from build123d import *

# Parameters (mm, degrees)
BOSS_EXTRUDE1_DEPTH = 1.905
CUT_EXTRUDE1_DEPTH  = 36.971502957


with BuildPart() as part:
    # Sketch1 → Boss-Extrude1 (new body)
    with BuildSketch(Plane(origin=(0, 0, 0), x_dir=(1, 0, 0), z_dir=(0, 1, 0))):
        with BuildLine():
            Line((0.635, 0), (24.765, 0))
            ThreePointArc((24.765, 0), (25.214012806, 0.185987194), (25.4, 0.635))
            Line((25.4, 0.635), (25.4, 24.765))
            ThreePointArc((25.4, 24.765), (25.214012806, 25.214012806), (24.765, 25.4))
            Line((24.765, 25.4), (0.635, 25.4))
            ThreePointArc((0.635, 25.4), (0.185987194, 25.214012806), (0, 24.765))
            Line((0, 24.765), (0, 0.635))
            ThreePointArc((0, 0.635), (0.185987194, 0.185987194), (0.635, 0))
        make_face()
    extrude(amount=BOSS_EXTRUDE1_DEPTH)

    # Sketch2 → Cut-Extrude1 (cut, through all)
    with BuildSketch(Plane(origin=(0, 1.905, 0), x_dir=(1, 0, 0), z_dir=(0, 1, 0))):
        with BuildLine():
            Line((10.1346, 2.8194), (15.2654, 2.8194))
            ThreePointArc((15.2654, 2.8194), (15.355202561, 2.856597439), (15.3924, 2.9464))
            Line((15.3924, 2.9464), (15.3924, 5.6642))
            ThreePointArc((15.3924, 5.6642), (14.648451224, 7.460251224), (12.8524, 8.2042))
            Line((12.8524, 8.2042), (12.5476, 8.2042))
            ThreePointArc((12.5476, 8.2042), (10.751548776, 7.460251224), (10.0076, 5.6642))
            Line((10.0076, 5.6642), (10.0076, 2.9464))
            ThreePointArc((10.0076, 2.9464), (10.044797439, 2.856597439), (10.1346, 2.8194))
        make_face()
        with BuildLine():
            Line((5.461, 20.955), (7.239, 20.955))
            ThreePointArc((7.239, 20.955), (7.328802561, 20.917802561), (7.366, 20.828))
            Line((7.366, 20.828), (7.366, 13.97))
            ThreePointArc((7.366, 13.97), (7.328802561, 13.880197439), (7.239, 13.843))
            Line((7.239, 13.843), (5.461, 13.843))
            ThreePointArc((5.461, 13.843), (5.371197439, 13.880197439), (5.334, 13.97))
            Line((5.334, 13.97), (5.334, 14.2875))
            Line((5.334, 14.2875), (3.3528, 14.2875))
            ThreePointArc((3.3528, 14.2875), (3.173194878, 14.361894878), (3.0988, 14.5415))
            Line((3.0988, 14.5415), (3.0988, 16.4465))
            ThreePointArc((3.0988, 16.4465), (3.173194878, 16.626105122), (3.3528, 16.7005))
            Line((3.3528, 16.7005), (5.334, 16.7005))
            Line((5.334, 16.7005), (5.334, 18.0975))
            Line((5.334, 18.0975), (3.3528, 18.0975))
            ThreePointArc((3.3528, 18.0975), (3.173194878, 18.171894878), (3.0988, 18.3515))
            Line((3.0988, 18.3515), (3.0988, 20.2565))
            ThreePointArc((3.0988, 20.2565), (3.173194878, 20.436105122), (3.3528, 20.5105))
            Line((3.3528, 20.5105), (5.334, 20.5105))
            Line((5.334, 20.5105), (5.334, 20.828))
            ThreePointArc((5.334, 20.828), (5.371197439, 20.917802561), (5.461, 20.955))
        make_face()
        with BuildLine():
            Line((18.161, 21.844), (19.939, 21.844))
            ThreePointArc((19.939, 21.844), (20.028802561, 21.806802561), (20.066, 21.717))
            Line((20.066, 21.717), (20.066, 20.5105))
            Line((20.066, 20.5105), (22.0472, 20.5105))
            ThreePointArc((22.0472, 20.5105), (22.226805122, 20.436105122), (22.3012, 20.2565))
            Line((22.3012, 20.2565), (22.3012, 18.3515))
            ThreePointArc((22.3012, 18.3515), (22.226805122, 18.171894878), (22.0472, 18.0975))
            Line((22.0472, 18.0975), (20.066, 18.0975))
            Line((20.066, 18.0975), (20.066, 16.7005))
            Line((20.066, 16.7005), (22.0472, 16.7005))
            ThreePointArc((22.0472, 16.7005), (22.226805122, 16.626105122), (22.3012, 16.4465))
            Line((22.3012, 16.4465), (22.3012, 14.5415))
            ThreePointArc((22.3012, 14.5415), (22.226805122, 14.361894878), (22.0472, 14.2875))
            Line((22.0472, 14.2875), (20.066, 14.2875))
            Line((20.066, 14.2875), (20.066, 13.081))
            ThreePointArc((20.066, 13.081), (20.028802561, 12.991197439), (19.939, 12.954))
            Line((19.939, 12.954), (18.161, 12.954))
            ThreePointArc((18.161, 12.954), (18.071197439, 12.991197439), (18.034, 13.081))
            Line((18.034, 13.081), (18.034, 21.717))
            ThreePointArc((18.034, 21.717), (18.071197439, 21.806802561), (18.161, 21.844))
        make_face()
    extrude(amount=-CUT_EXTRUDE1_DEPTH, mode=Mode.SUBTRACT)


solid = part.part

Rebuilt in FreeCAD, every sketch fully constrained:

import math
import FreeCAD as App
import Part
import Sketcher
Q = App.Units.Quantity

doc = App.newDocument("Part")
body = doc.addObject("PartDesign::Body", "Body")

sketch1 = body.newObject("Sketcher::SketchObject", "Sketch")
sketch1.AttachmentSupport = (doc.getObject("XZ_Plane"), [""])
sketch1.MapMode = "FlatFace"
sketch1.addGeometry(Part.LineSegment(App.Vector(0.635, 0, 0), App.Vector(24.765, 0, 0)), False)
sketch1.addGeometry(Part.ArcOfCircle(Part.Circle(App.Vector(24.765, -0.635, 0), App.Vector(0, 0, 1), 0.635), math.radians(0), math.radians(90)), False)
sketch1.addGeometry(Part.LineSegment(App.Vector(25.4, -0.635, 0), App.Vector(25.4, -24.765, 0)), False)
sketch1.addGeometry(Part.ArcOfCircle(Part.Circle(App.Vector(24.765, -24.765, 0), App.Vector(0, 0, 1), 0.635), math.radians(-90), math.radians(0)), False)
sketch1.addGeometry(Part.LineSegment(App.Vector(24.765, -25.4, 0), App.Vector(0.635, -25.4, 0)), False)
sketch1.addGeometry(Part.ArcOfCircle(Part.Circle(App.Vector(0.635, -24.765, 0), App.Vector(0, 0, 1), 0.635), math.radians(180), math.radians(270)), False)
sketch1.addGeometry(Part.LineSegment(App.Vector(0, -24.765, 0), App.Vector(0, -0.635, 0)), False)
sketch1.addGeometry(Part.ArcOfCircle(Part.Circle(App.Vector(0.635, -0.635, 0), App.Vector(0, 0, 1), 0.635), math.radians(90), math.radians(180)), False)
sketch1.addConstraint(Sketcher.Constraint("Tangent", 0, 2, 1, 2))
sketch1.addConstraint(Sketcher.Constraint("Tangent", 1, 1, 2, 1))
sketch1.addConstraint(Sketcher.Constraint("Tangent", 2, 2, 3, 2))
sketch1.addConstraint(Sketcher.Constraint("Tangent", 3, 1, 4, 1))
sketch1.addConstraint(Sketcher.Constraint("Tangent", 4, 2, 5, 2))
sketch1.addConstraint(Sketcher.Constraint("Tangent", 5, 1, 6, 1))
sketch1.addConstraint(Sketcher.Constraint("Tangent", 6, 2, 7, 2))
sketch1.addConstraint(Sketcher.Constraint("Tangent", 7, 1, 0, 1))
sketch1.addConstraint(Sketcher.Constraint("Horizontal", 0))
sketch1.addConstraint(Sketcher.Constraint("Vertical", 2))
sketch1.addConstraint(Sketcher.Constraint("Horizontal", 4))
sketch1.addConstraint(Sketcher.Constraint("Vertical", 6))
sketch1.addConstraint(Sketcher.Constraint("Equal", 1, 3))
sketch1.addConstraint(Sketcher.Constraint("Equal", 3, 5))
sketch1.addConstraint(Sketcher.Constraint("Equal", 5, 7))
sketch1.addConstraint(Sketcher.Constraint("PointOnObject", 0, 2, -1))
sketch1.addConstraint(Sketcher.Constraint("PointOnObject", 5, 1, -2))
sketch1.addConstraint(Sketcher.Constraint("Equal", 4, 2))
sketch1.addConstraint(Sketcher.Constraint("DistanceX", -1, 1, 1, 1, Q("1 in")))
sketch1.addConstraint(Sketcher.Constraint("Radius", 1, Q("0.025 in")))
pad1 = body.newObject("PartDesign::Pad", "Pad")
pad1.Profile = sketch1
pad1.Length = Q("0.075 in")
pad1.Reversed = True

sketch2 = body.newObject("Sketcher::SketchObject", "Sketch001")
sketch2.AttachmentSupport = (doc.getObject("XZ_Plane"), [""])
sketch2.MapMode = "FlatFace"
sketch2.AttachmentOffset = App.Placement(App.Vector(0, 0, -0.075 * 25.4), App.Rotation())
sketch2.addGeometry(Part.LineSegment(App.Vector(10.1346, -2.8194, 0), App.Vector(15.2654, -2.8194, 0)), False)
sketch2.addGeometry(Part.ArcOfCircle(Part.Circle(App.Vector(15.2654, -2.9464, 0), App.Vector(0, 0, 1), 0.127), math.radians(0), math.radians(90)), False)
sketch2.addGeometry(Part.LineSegment(App.Vector(15.3924, -2.9464, 0), App.Vector(15.3924, -5.6642, 0)), False)
sketch2.addGeometry(Part.ArcOfCircle(Part.Circle(App.Vector(12.8524, -5.6642, 0), App.Vector(0, 0, 1), 2.54), math.radians(-90), math.radians(0)), False)
sketch2.addGeometry(Part.LineSegment(App.Vector(12.8524, -8.2042, 0), App.Vector(12.5476, -8.2042, 0)), False)
sketch2.addGeometry(Part.ArcOfCircle(Part.Circle(App.Vector(12.5476, -5.6642, 0), App.Vector(0, 0, 1), 2.54), math.radians(-180), math.radians(-90)), False)
sketch2.addGeometry(Part.LineSegment(App.Vector(10.0076, -5.6642, 0), App.Vector(10.0076, -2.9464, 0)), False)
sketch2.addGeometry(Part.ArcOfCircle(Part.Circle(App.Vector(10.1346, -2.9464, 0), App.Vector(0, 0, 1), 0.127), math.radians(90), math.radians(180)), False)
sketch2.addGeometry(Part.LineSegment(App.Vector(7.239, -20.955, 0), App.Vector(5.461, -20.955, 0)), False)
sketch2.addGeometry(Part.ArcOfCircle(Part.Circle(App.Vector(5.461, -20.828, 0), App.Vector(0, 0, 1), 0.127), math.radians(-180), math.radians(-90)), False)
sketch2.addGeometry(Part.LineSegment(App.Vector(5.334, -20.828, 0), App.Vector(5.334, -20.5105, 0)), False)
sketch2.addGeometry(Part.LineSegment(App.Vector(5.334, -20.5105, 0), App.Vector(3.3528, -20.5105, 0)), False)
sketch2.addGeometry(Part.ArcOfCircle(Part.Circle(App.Vector(3.3528, -20.2565, 0), App.Vector(0, 0, 1), 0.254), math.radians(-180), math.radians(-90)), False)
sketch2.addGeometry(Part.LineSegment(App.Vector(3.0988, -20.2565, 0), App.Vector(3.0988, -18.3515, 0)), False)
sketch2.addGeometry(Part.ArcOfCircle(Part.Circle(App.Vector(3.3528, -18.3515, 0), App.Vector(0, 0, 1), 0.254), math.radians(90), math.radians(180)), False)
sketch2.addGeometry(Part.LineSegment(App.Vector(3.3528, -18.0975, 0), App.Vector(5.334, -18.0975, 0)), False)
sketch2.addGeometry(Part.LineSegment(App.Vector(5.334, -18.0975, 0), App.Vector(5.334, -16.7005, 0)), False)
sketch2.addGeometry(Part.LineSegment(App.Vector(5.334, -16.7005, 0), App.Vector(3.3528, -16.7005, 0)), False)
sketch2.addGeometry(Part.ArcOfCircle(Part.Circle(App.Vector(3.3528, -16.4465, 0), App.Vector(0, 0, 1), 0.254), math.radians(-180), math.radians(-90)), False)
sketch2.addGeometry(Part.LineSegment(App.Vector(3.0988, -16.4465, 0), App.Vector(3.0988, -14.5415, 0)), False)
sketch2.addGeometry(Part.ArcOfCircle(Part.Circle(App.Vector(3.3528, -14.5415, 0), App.Vector(0, 0, 1), 0.254), math.radians(90), math.radians(180)), False)
sketch2.addGeometry(Part.LineSegment(App.Vector(3.3528, -14.2875, 0), App.Vector(5.334, -14.2875, 0)), False)
sketch2.addGeometry(Part.LineSegment(App.Vector(5.334, -14.2875, 0), App.Vector(5.334, -13.97, 0)), False)
sketch2.addGeometry(Part.ArcOfCircle(Part.Circle(App.Vector(5.461, -13.97, 0), App.Vector(0, 0, 1), 0.127), math.radians(90), math.radians(180)), False)
sketch2.addGeometry(Part.LineSegment(App.Vector(5.461, -13.843, 0), App.Vector(7.239, -13.843, 0)), False)
sketch2.addGeometry(Part.ArcOfCircle(Part.Circle(App.Vector(7.239, -13.97, 0), App.Vector(0, 0, 1), 0.127), math.radians(0), math.radians(90)), False)
sketch2.addGeometry(Part.LineSegment(App.Vector(7.366, -13.97, 0), App.Vector(7.366, -20.828, 0)), False)
sketch2.addGeometry(Part.ArcOfCircle(Part.Circle(App.Vector(7.239, -20.828, 0), App.Vector(0, 0, 1), 0.127), math.radians(-90), math.radians(0)), False)
sketch2.addGeometry(Part.LineSegment(App.Vector(19.939, -21.844, 0), App.Vector(18.161, -21.844, 0)), False)
sketch2.addGeometry(Part.ArcOfCircle(Part.Circle(App.Vector(18.161, -21.717, 0), App.Vector(0, 0, 1), 0.127), math.radians(-180), math.radians(-90)), False)
sketch2.addGeometry(Part.LineSegment(App.Vector(18.034, -21.717, 0), App.Vector(18.034, -13.081, 0)), False)
sketch2.addGeometry(Part.ArcOfCircle(Part.Circle(App.Vector(18.161, -13.081, 0), App.Vector(0, 0, 1), 0.127), math.radians(90), math.radians(180)), False)
sketch2.addGeometry(Part.LineSegment(App.Vector(18.161, -12.954, 0), App.Vector(19.939, -12.954, 0)), False)
sketch2.addGeometry(Part.ArcOfCircle(Part.Circle(App.Vector(19.939, -13.081, 0), App.Vector(0, 0, 1), 0.127), math.radians(0), math.radians(90)), False)
sketch2.addGeometry(Part.LineSegment(App.Vector(20.066, -13.081, 0), App.Vector(20.066, -14.2875, 0)), False)
sketch2.addGeometry(Part.LineSegment(App.Vector(20.066, -14.2875, 0), App.Vector(22.0472, -14.2875, 0)), False)
sketch2.addGeometry(Part.ArcOfCircle(Part.Circle(App.Vector(22.0472, -14.5415, 0), App.Vector(0, 0, 1), 0.254), math.radians(0), math.radians(90)), False)
sketch2.addGeometry(Part.LineSegment(App.Vector(22.3012, -14.5415, 0), App.Vector(22.3012, -16.4465, 0)), False)
sketch2.addGeometry(Part.ArcOfCircle(Part.Circle(App.Vector(22.0472, -16.4465, 0), App.Vector(0, 0, 1), 0.254), math.radians(-90), math.radians(0)), False)
sketch2.addGeometry(Part.LineSegment(App.Vector(22.0472, -16.7005, 0), App.Vector(20.066, -16.7005, 0)), False)
sketch2.addGeometry(Part.LineSegment(App.Vector(20.066, -16.7005, 0), App.Vector(20.066, -18.0975, 0)), False)
sketch2.addGeometry(Part.LineSegment(App.Vector(20.066, -18.0975, 0), App.Vector(22.0472, -18.0975, 0)), False)
sketch2.addGeometry(Part.ArcOfCircle(Part.Circle(App.Vector(22.0472, -18.3515, 0), App.Vector(0, 0, 1), 0.254), math.radians(0), math.radians(90)), False)
sketch2.addGeometry(Part.LineSegment(App.Vector(22.3012, -18.3515, 0), App.Vector(22.3012, -20.2565, 0)), False)
sketch2.addGeometry(Part.ArcOfCircle(Part.Circle(App.Vector(22.0472, -20.2565, 0), App.Vector(0, 0, 1), 0.254), math.radians(-90), math.radians(0)), False)
sketch2.addGeometry(Part.LineSegment(App.Vector(22.0472, -20.5105, 0), App.Vector(20.066, -20.5105, 0)), False)
sketch2.addGeometry(Part.LineSegment(App.Vector(20.066, -20.5105, 0), App.Vector(20.066, -21.717, 0)), False)
sketch2.addGeometry(Part.ArcOfCircle(Part.Circle(App.Vector(19.939, -21.717, 0), App.Vector(0, 0, 1), 0.127), math.radians(-90), math.radians(0)), False)
sketch2.addConstraint(Sketcher.Constraint("Tangent", 0, 2, 1, 2))
sketch2.addConstraint(Sketcher.Constraint("Tangent", 1, 1, 2, 1))
sketch2.addConstraint(Sketcher.Constraint("Tangent", 2, 2, 3, 2))
sketch2.addConstraint(Sketcher.Constraint("Tangent", 3, 1, 4, 1))
sketch2.addConstraint(Sketcher.Constraint("Tangent", 4, 2, 5, 2))
sketch2.addConstraint(Sketcher.Constraint("Tangent", 5, 1, 6, 1))
sketch2.addConstraint(Sketcher.Constraint("Tangent", 6, 2, 7, 2))
sketch2.addConstraint(Sketcher.Constraint("Tangent", 7, 1, 0, 1))
sketch2.addConstraint(Sketcher.Constraint("Tangent", 8, 2, 9, 2))
sketch2.addConstraint(Sketcher.Constraint("Tangent", 9, 1, 10, 1))
sketch2.addConstraint(Sketcher.Constraint("Coincident", 10, 2, 11, 1))
sketch2.addConstraint(Sketcher.Constraint("Tangent", 11, 2, 12, 2))
sketch2.addConstraint(Sketcher.Constraint("Tangent", 12, 1, 13, 1))
sketch2.addConstraint(Sketcher.Constraint("Tangent", 13, 2, 14, 2))
sketch2.addConstraint(Sketcher.Constraint("Tangent", 14, 1, 15, 1))
sketch2.addConstraint(Sketcher.Constraint("Coincident", 15, 2, 16, 1))
sketch2.addConstraint(Sketcher.Constraint("Coincident", 16, 2, 17, 1))
sketch2.addConstraint(Sketcher.Constraint("Tangent", 17, 2, 18, 2))
sketch2.addConstraint(Sketcher.Constraint("Tangent", 18, 1, 19, 1))
sketch2.addConstraint(Sketcher.Constraint("Tangent", 19, 2, 20, 2))
sketch2.addConstraint(Sketcher.Constraint("Tangent", 20, 1, 21, 1))
sketch2.addConstraint(Sketcher.Constraint("Coincident", 21, 2, 22, 1))
sketch2.addConstraint(Sketcher.Constraint("Tangent", 22, 2, 23, 2))
sketch2.addConstraint(Sketcher.Constraint("Tangent", 23, 1, 24, 1))
sketch2.addConstraint(Sketcher.Constraint("Tangent", 24, 2, 25, 2))
sketch2.addConstraint(Sketcher.Constraint("Tangent", 25, 1, 26, 1))
sketch2.addConstraint(Sketcher.Constraint("Tangent", 26, 2, 27, 2))
sketch2.addConstraint(Sketcher.Constraint("Tangent", 27, 1, 8, 1))
sketch2.addConstraint(Sketcher.Constraint("Tangent", 28, 2, 29, 2))
sketch2.addConstraint(Sketcher.Constraint("Tangent", 29, 1, 30, 1))
sketch2.addConstraint(Sketcher.Constraint("Tangent", 30, 2, 31, 2))
sketch2.addConstraint(Sketcher.Constraint("Tangent", 31, 1, 32, 1))
sketch2.addConstraint(Sketcher.Constraint("Tangent", 32, 2, 33, 2))
sketch2.addConstraint(Sketcher.Constraint("Tangent", 33, 1, 34, 1))
sketch2.addConstraint(Sketcher.Constraint("Coincident", 34, 2, 35, 1))
sketch2.addConstraint(Sketcher.Constraint("Tangent", 35, 2, 36, 2))
sketch2.addConstraint(Sketcher.Constraint("Tangent", 36, 1, 37, 1))
sketch2.addConstraint(Sketcher.Constraint("Tangent", 37, 2, 38, 2))
sketch2.addConstraint(Sketcher.Constraint("Tangent", 38, 1, 39, 1))
sketch2.addConstraint(Sketcher.Constraint("Coincident", 39, 2, 40, 1))
sketch2.addConstraint(Sketcher.Constraint("Coincident", 40, 2, 41, 1))
sketch2.addConstraint(Sketcher.Constraint("Tangent", 41, 2, 42, 2))
sketch2.addConstraint(Sketcher.Constraint("Tangent", 42, 1, 43, 1))
sketch2.addConstraint(Sketcher.Constraint("Tangent", 43, 2, 44, 2))
sketch2.addConstraint(Sketcher.Constraint("Tangent", 44, 1, 45, 1))
sketch2.addConstraint(Sketcher.Constraint("Coincident", 45, 2, 46, 1))
sketch2.addConstraint(Sketcher.Constraint("Tangent", 46, 2, 47, 2))
sketch2.addConstraint(Sketcher.Constraint("Tangent", 47, 1, 28, 1))
sketch2.addConstraint(Sketcher.Constraint("Horizontal", 0))
sketch2.addConstraint(Sketcher.Constraint("Vertical", 2))
sketch2.addConstraint(Sketcher.Constraint("Horizontal", 4))
sketch2.addConstraint(Sketcher.Constraint("Vertical", 6))
sketch2.addConstraint(Sketcher.Constraint("Horizontal", 8))
sketch2.addConstraint(Sketcher.Constraint("Vertical", 10))
sketch2.addConstraint(Sketcher.Constraint("Horizontal", 11))
sketch2.addConstraint(Sketcher.Constraint("Vertical", 13))
sketch2.addConstraint(Sketcher.Constraint("Horizontal", 15))
sketch2.addConstraint(Sketcher.Constraint("Vertical", 16))
sketch2.addConstraint(Sketcher.Constraint("Horizontal", 17))
sketch2.addConstraint(Sketcher.Constraint("Vertical", 19))
sketch2.addConstraint(Sketcher.Constraint("Horizontal", 21))
sketch2.addConstraint(Sketcher.Constraint("Vertical", 22))
sketch2.addConstraint(Sketcher.Constraint("Horizontal", 24))
sketch2.addConstraint(Sketcher.Constraint("Vertical", 26))
sketch2.addConstraint(Sketcher.Constraint("Horizontal", 28))
sketch2.addConstraint(Sketcher.Constraint("Vertical", 30))
sketch2.addConstraint(Sketcher.Constraint("Horizontal", 32))
sketch2.addConstraint(Sketcher.Constraint("Vertical", 34))
sketch2.addConstraint(Sketcher.Constraint("Horizontal", 35))
sketch2.addConstraint(Sketcher.Constraint("Vertical", 37))
sketch2.addConstraint(Sketcher.Constraint("Horizontal", 39))
sketch2.addConstraint(Sketcher.Constraint("Vertical", 40))
sketch2.addConstraint(Sketcher.Constraint("Horizontal", 41))
sketch2.addConstraint(Sketcher.Constraint("Vertical", 43))
sketch2.addConstraint(Sketcher.Constraint("Horizontal", 45))
sketch2.addConstraint(Sketcher.Constraint("Vertical", 46))
sketch2.addConstraint(Sketcher.Constraint("Equal", 3, 5))
sketch2.addConstraint(Sketcher.Constraint("Equal", 1, 7))
sketch2.addConstraint(Sketcher.Constraint("Equal", 7, 9))
sketch2.addConstraint(Sketcher.Constraint("Equal", 12, 14))
sketch2.addConstraint(Sketcher.Constraint("Equal", 14, 18))
sketch2.addConstraint(Sketcher.Constraint("Equal", 18, 20))
sketch2.addConstraint(Sketcher.Constraint("Equal", 9, 23))
sketch2.addConstraint(Sketcher.Constraint("Equal", 23, 25))
sketch2.addConstraint(Sketcher.Constraint("Equal", 25, 27))
sketch2.addConstraint(Sketcher.Constraint("Equal", 27, 29))
sketch2.addConstraint(Sketcher.Constraint("Equal", 29, 31))
sketch2.addConstraint(Sketcher.Constraint("Equal", 31, 33))
sketch2.addConstraint(Sketcher.Constraint("Equal", 20, 36))
sketch2.addConstraint(Sketcher.Constraint("Equal", 36, 38))
sketch2.addConstraint(Sketcher.Constraint("Equal", 38, 42))
sketch2.addConstraint(Sketcher.Constraint("Equal", 42, 44))
sketch2.addConstraint(Sketcher.Constraint("Equal", 33, 47))
sketch2.addConstraint(Sketcher.Constraint("Horizontal", 20, 3, 36, 3))
sketch2.addConstraint(Sketcher.Constraint("Horizontal", 18, 3, 38, 3))
sketch2.addConstraint(Sketcher.Constraint("Horizontal", 14, 3, 42, 3))
sketch2.addConstraint(Sketcher.Constraint("Horizontal", 12, 3, 44, 3))
sketch2.addConstraint(Sketcher.Constraint("Vertical", 14, 3, 18, 3))
sketch2.addConstraint(Sketcher.Constraint("Vertical", 9, 3, 23, 3))
sketch2.addConstraint(Sketcher.Constraint("Vertical", 38, 3, 42, 3))
sketch2.addConstraint(Sketcher.Constraint("Vertical", 33, 3, 47, 3))
sketch2.addConstraint(Sketcher.Constraint("Vertical", 10, 2, 15, 2))
sketch2.addConstraint(Sketcher.Constraint("Vertical", 34, 2, 39, 2))
sketch2.addConstraint(Sketcher.Constraint("Equal", 24, 28))
sketch2.addConstraint(Sketcher.Constraint("Equal", 21, 35))
sketch2.addConstraint(Sketcher.Constraint("Equal", 13, 19))
sketch2.addConstraint(Sketcher.Constraint("Equal", 10, 22))
sketch2.addConstraint(Sketcher.Constraint("Equal", 34, 46))
sketch2.addConstraint(Sketcher.Constraint("Radius", 3, Q("0.1 in")))
sketch2.addConstraint(Sketcher.Constraint("Radius", 12, Q("0.01 in")))
sketch2.addConstraint(Sketcher.Constraint("Radius", 1, Q("0.005 in")))
sketch2.addConstraint(Sketcher.Constraint("DistanceX", 8, 2, 8, 1, Q("0.07 in")))
sketch2.addConstraint(Sketcher.Constraint("DistanceY", 26, 2, 26, 1, Q("0.27 in")))
sketch2.addConstraint(Sketcher.Constraint("DistanceY", 30, 1, 30, 2, Q("0.34 in")))
sketch2.addConstraint(Sketcher.Constraint("DistanceX", 0, 1, 0, 2, Q("0.202 in")))
sketch2.addConstraint(Sketcher.Constraint("DistanceX", 11, 2, 11, 1, Q("0.078 in")))
sketch2.addConstraint(Sketcher.Constraint("DistanceY", 2, 2, 2, 1, Q("0.107 in")))
sketch2.addConstraint(Sketcher.Constraint("DistanceY", 13, 1, 13, 2, Q("0.075 in")))
sketch2.addConstraint(Sketcher.Constraint("DistanceY", 16, 1, 16, 2, Q("0.055 in")))
sketch2.addConstraint(Sketcher.Constraint("DistanceY", 9, 3, -1, 1, Q("0.82 in")))
sketch2.addConstraint(Sketcher.Constraint("DistanceX", -1, 1, 9, 1, Q("0.21 in")))
sketch2.addConstraint(Sketcher.Constraint("DistanceX", -1, 1, 29, 1, Q("0.71 in")))
sketch2.addConstraint(Sketcher.Constraint("DistanceX", -1, 1, 1, 3, Q("0.601 in")))
sketch2.addConstraint(Sketcher.Constraint("DistanceY", 1, 3, -1, 1, Q("0.116 in")))
pocket1 = body.newObject("PartDesign::Pocket", "Pocket")
pocket1.Profile = sketch2
pocket1.Type = "ThroughAll"
pocket1.Reversed = True

doc.recompute()
